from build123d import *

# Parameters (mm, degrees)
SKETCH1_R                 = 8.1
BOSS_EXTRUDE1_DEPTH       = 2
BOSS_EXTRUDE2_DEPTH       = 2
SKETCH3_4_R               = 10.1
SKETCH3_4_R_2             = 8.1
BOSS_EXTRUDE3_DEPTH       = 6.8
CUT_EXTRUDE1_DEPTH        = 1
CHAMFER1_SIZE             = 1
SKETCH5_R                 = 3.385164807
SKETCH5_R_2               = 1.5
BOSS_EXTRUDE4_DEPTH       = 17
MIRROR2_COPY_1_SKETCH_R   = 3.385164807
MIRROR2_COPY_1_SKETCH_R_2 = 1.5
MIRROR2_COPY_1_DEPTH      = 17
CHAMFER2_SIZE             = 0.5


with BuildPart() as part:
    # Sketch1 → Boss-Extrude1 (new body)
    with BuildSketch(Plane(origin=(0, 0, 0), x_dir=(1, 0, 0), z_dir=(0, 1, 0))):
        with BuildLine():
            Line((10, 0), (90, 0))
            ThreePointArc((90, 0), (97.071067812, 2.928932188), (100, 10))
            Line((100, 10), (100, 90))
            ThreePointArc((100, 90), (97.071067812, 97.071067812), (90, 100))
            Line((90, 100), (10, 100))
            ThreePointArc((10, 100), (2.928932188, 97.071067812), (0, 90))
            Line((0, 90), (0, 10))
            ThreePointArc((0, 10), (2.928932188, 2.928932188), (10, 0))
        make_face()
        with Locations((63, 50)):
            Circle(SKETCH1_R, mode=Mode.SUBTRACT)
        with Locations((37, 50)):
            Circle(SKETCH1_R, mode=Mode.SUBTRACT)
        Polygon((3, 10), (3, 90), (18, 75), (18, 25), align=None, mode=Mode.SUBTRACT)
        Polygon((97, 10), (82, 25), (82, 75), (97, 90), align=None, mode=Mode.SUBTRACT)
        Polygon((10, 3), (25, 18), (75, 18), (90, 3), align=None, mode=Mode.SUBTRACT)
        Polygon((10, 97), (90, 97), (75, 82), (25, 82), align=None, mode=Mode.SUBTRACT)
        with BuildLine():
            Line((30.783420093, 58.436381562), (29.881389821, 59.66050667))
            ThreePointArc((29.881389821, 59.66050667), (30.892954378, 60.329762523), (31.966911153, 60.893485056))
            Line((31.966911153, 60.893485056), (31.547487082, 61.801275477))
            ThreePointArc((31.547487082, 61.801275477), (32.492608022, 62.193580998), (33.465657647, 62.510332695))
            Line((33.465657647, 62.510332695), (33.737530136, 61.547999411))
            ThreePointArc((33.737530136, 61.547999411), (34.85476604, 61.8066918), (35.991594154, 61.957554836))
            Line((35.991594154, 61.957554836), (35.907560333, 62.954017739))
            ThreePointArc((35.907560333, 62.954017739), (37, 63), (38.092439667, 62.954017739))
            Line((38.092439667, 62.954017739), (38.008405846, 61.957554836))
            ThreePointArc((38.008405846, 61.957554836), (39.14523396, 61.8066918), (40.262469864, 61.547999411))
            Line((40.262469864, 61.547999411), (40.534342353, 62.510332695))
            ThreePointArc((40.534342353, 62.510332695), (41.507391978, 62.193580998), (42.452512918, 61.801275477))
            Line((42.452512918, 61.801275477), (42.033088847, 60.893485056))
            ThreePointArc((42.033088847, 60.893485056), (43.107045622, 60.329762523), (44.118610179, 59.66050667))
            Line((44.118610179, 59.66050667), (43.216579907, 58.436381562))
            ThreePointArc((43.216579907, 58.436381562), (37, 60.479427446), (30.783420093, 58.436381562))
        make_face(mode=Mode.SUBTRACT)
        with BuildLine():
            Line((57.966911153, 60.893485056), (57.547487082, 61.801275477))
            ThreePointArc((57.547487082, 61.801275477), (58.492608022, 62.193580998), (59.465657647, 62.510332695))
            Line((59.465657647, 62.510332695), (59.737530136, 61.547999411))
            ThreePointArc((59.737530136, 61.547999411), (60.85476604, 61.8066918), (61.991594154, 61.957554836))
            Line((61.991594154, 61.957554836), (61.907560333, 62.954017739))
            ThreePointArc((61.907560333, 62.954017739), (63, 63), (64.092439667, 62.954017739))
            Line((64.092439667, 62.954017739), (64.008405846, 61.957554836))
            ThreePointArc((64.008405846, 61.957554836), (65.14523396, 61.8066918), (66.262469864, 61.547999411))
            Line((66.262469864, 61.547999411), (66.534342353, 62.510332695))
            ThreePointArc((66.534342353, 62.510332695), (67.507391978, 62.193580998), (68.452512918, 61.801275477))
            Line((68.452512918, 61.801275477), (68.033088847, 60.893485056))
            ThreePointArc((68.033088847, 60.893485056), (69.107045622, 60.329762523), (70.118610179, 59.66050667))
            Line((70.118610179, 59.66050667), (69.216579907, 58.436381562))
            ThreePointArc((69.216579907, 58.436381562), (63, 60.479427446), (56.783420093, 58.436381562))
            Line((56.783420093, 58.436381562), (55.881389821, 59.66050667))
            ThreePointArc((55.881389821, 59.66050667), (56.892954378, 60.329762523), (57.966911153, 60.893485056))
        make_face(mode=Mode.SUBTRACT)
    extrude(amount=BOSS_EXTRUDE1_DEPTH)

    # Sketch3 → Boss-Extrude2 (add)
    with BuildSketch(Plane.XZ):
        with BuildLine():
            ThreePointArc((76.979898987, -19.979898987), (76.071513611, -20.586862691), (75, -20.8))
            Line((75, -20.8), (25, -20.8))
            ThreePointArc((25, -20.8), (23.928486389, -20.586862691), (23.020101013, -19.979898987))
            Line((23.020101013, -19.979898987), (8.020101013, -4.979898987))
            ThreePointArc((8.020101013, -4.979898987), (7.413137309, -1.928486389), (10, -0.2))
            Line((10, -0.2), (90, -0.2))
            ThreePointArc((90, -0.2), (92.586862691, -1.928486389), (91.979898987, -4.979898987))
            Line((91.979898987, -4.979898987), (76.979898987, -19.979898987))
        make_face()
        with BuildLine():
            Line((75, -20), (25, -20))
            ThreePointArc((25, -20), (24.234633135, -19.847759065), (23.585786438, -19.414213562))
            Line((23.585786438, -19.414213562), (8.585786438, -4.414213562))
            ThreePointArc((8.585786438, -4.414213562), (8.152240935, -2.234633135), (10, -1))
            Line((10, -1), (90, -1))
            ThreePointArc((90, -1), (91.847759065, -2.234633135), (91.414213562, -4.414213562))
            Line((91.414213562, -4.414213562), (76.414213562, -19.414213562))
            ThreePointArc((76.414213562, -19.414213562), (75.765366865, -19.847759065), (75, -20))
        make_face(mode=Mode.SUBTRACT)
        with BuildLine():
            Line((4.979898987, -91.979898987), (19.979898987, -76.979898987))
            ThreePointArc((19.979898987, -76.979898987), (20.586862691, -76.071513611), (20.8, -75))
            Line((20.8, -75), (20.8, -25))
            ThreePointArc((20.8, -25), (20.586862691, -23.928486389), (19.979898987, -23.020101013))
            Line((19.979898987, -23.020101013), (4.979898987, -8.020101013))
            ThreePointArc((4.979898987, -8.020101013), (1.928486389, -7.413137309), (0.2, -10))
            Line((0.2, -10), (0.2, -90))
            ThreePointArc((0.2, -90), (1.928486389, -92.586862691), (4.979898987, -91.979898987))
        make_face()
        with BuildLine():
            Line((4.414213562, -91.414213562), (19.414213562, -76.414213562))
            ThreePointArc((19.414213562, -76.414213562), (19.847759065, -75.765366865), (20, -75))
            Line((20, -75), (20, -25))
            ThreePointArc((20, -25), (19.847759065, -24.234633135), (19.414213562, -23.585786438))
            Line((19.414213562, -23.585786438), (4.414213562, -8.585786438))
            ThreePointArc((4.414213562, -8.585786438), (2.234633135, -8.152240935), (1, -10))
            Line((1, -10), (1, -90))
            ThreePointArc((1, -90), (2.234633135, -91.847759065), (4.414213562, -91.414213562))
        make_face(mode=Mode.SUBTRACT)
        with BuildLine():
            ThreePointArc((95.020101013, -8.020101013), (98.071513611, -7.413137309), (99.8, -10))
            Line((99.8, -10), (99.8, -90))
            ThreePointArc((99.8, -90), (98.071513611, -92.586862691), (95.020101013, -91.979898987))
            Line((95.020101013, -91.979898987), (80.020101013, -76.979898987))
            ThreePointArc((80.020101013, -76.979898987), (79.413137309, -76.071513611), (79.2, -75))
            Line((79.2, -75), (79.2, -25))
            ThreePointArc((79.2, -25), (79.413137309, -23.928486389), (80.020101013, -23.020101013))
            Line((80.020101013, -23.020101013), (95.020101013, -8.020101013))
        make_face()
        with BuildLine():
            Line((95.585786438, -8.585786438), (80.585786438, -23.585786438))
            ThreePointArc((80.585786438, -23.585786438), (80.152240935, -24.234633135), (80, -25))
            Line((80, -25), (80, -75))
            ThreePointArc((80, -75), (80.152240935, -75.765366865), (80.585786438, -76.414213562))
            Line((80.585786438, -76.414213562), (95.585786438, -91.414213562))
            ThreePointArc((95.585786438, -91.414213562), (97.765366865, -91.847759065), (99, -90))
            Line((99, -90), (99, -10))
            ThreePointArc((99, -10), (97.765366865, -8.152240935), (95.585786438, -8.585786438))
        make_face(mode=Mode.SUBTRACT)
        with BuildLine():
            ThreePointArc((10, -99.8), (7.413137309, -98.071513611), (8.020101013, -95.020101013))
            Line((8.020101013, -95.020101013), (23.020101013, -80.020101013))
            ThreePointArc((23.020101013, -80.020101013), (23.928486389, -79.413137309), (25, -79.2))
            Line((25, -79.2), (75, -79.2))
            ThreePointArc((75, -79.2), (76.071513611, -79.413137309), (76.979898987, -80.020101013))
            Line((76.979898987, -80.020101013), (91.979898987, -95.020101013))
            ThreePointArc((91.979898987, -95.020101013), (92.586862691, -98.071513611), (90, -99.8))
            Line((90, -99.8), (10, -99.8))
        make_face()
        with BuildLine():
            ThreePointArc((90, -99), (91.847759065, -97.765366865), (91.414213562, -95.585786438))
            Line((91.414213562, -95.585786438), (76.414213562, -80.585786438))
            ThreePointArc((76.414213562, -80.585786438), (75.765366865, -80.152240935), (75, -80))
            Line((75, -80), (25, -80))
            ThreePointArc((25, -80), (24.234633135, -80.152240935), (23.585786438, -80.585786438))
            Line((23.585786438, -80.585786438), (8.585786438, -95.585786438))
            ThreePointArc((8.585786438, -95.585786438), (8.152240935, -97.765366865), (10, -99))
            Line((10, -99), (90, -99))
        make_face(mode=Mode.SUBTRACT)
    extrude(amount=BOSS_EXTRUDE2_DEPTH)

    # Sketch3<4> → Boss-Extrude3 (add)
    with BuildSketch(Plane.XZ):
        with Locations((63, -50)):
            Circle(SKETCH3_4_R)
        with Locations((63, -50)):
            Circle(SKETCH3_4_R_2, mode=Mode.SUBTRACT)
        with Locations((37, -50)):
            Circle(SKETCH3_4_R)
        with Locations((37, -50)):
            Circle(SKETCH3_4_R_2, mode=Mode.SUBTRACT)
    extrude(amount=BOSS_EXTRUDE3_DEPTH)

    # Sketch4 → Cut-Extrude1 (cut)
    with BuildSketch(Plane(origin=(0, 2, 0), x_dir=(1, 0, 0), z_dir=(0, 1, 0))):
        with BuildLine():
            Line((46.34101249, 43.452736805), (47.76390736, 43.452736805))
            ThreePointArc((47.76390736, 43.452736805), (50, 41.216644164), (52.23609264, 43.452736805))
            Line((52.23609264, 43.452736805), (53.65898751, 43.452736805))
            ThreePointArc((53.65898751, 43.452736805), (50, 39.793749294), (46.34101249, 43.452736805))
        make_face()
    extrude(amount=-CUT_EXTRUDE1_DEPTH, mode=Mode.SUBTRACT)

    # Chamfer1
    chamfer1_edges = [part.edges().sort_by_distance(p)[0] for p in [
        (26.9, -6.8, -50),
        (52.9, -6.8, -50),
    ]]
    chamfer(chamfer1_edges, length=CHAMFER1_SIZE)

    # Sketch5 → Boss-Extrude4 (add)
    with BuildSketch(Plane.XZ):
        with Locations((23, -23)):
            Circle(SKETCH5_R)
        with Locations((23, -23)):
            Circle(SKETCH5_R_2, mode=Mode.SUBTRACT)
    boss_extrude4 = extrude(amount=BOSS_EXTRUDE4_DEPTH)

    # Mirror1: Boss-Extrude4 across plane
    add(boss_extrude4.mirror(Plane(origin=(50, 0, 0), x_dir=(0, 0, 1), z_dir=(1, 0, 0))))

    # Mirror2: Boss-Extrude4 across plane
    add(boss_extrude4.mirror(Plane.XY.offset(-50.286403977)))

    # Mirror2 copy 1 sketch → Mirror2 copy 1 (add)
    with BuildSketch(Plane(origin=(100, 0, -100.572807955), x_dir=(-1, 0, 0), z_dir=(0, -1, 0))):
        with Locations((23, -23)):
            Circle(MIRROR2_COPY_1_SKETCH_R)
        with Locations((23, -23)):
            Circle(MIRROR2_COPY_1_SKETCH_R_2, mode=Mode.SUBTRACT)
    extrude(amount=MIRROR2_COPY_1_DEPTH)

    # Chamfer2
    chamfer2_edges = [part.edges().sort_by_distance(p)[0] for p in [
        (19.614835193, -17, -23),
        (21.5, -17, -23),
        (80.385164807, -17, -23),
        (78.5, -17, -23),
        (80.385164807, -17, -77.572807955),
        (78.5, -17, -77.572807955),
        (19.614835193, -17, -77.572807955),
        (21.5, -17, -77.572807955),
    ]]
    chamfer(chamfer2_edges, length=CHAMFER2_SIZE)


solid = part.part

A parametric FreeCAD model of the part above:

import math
import FreeCAD as App
import Part
import Sketcher

V = App.Vector
Q = App.Units.Quantity


def edges_at(feature, points):
    """Names of the edges that pass closest to the given points."""
    edges = feature.Shape.Edges
    near = lambda p: min(range(len(edges)), key=lambda i: edges[i].distToShape(Part.Vertex(*p))[0])
    return sorted({f"Edge{near(p) + 1}" for p in points})

doc = App.newDocument("Part")
body = doc.addObject("PartDesign::Body", "Body")

sketch1 = body.newObject("Sketcher::SketchObject", "Sketch")
sketch1.AttachmentSupport = (doc.getObject("XZ_Plane"), [""])
sketch1.MapMode = "FlatFace"
sketch1.addGeometry(Part.LineSegment(V(10, 0, 0), V(90, 0, 0)), False)
sketch1.addGeometry(Part.ArcOfCircle(Part.Circle(V(90, -10, 0), V(0, 0, 1), 10), math.radians(0), math.radians(90)), False)
sketch1.addGeometry(Part.LineSegment(V(100, -10, 0), V(100, -90, 0)), False)
sketch1.addGeometry(Part.ArcOfCircle(Part.Circle(V(90, -90, 0), V(0, 0, 1), 10), math.radians(-90), math.radians(0)), False)
sketch1.addGeometry(Part.LineSegment(V(90, -100, 0), V(10, -100, 0)), False)
sketch1.addGeometry(Part.ArcOfCircle(Part.Circle(V(10, -90, 0), V(0, 0, 1), 10), math.radians(180), math.radians(270)), False)
sketch1.addGeometry(Part.LineSegment(V(0, -90, 0), V(0, -10, 0)), False)
sketch1.addGeometry(Part.ArcOfCircle(Part.Circle(V(10, -10, 0), V(0, 0, 1), 10), math.radians(90), math.radians(180)), False)
sketch1.addGeometry(Part.LineSegment(V(90, -3, 0), V(10, -3, 0)), False)
sketch1.addGeometry(Part.LineSegment(V(10, -3, 0), V(25, -18, 0)), False)
sketch1.addGeometry(Part.LineSegment(V(25, -18, 0), V(75, -18, 0)), False)
sketch1.addGeometry(Part.LineSegment(V(75, -18, 0), V(90, -3, 0)), False)
sketch1.addGeometry(Part.LineSegment(V(18, -25, 0), V(3, -10, 0)), False)
sketch1.addGeometry(Part.LineSegment(V(3, -10, 0), V(3, -90, 0)), False)
sketch1.addGeometry(Part.LineSegment(V(3, -90, 0), V(18, -75, 0)), False)
sketch1.addGeometry(Part.LineSegment(V(18, -75, 0), V(18, -25, 0)), False)
sketch1.addGeometry(Part.Circle(V(37, -50, 0), V(0, 0, 1), 8.1), False)
sketch1.addGeometry(Part.ArcOfCircle(Part.Circle(V(37, -50, 0), V(0, 0, 1), 10.5), math.radians(-126), math.radians(-54)), False)
sketch1.addGeometry(Part.LineSegment(V(30.8, -58.4, 0), V(29.9, -59.7, 0)), False)
sketch1.addGeometry(Part.ArcOfCircle(Part.Circle(V(37, -50, 0), V(0, 0, 1), 12), math.radians(-126.39), math.radians(-114.8)), False)
sketch1.addGeometry(Part.LineSegment(V(32, -60.9, 0), V(31.5, -61.8, 0)), False)
sketch1.addGeometry(Part.ArcOfCircle(Part.Circle(V(37, -50, 0), V(0, 0, 1), 13), math.radians(-114.8), math.radians(-105.78)), False)
sketch1.addGeometry(Part.LineSegment(V(33.5, -62.5, 0), V(33.7, -61.5, 0)), False)
sketch1.addGeometry(Part.ArcOfCircle(Part.Circle(V(37, -50, 0), V(0, 0, 1), 12), math.radians(-105.78), math.radians(-94.82)), False)
sketch1.addGeometry(Part.LineSegment(V(36, -62, 0), V(35.9, -63, 0)), False)
sketch1.addGeometry(Part.ArcOfCircle(Part.Circle(V(37, -50, 0), V(0, 0, 1), 13), math.radians(-94.82), math.radians(-85.18)), False)
sketch1.addGeometry(Part.LineSegment(V(38.1, -63, 0), V(38, -62, 0)), False)
sketch1.addGeometry(Part.ArcOfCircle(Part.Circle(V(37, -50, 0), V(0, 0, 1), 12), math.radians(-85.18), math.radians(-74.22)), False)
sketch1.addGeometry(Part.LineSegment(V(40.3, -61.5, 0), V(40.5, -62.5, 0)), False)
sketch1.addGeometry(Part.ArcOfCircle(Part.Circle(V(37, -50, 0), V(0, 0, 1), 13), math.radians(-74.22), math.radians(-65.2)), False)
sketch1.addGeometry(Part.LineSegment(V(42.5, -61.8, 0), V(42, -60.9, 0)), False)
sketch1.addGeometry(Part.ArcOfCircle(Part.Circle(V(37, -50, 0), V(0, 0, 1), 12), math.radians(-65.2), math.radians(-53.61)), False)
sketch1.addGeometry(Part.LineSegment(V(44.1, -59.7, 0), V(43.2, -58.4, 0)), False)
sketch1.addGeometry(Part.Circle(V(63, -50, 0), V(0, 0, 1), 8.1), False)
sketch1.addGeometry(Part.ArcOfCircle(Part.Circle(V(63, -50, 0), V(0, 0, 1), 12), math.radians(-126.39), math.radians(-114.8)), False)
sketch1.addGeometry(Part.LineSegment(V(58, -60.9, 0), V(57.5, -61.8, 0)), False)
sketch1.addGeometry(Part.ArcOfCircle(Part.Circle(V(63, -50, 0), V(0, 0, 1), 13), math.radians(-114.8), math.radians(-105.78)), False)
sketch1.addGeometry(Part.LineSegment(V(59.5, -62.5, 0), V(59.7, -61.5, 0)), False)
sketch1.addGeometry(Part.ArcOfCircle(Part.Circle(V(63, -50, 0), V(0, 0, 1), 12), math.radians(-105.78), math.radians(-94.82)), False)
sketch1.addGeometry(Part.LineSegment(V(62, -62, 0), V(61.9, -63, 0)), False)
sketch1.addGeometry(Part.ArcOfCircle(Part.Circle(V(63, -50, 0), V(0, 0, 1), 13), math.radians(-94.82), math.radians(-85.18)), False)
sketch1.addGeometry(Part.LineSegment(V(64.1, -63, 0), V(64, -62, 0)), False)
sketch1.addGeometry(Part.ArcOfCircle(Part.Circle(V(63, -50, 0), V(0, 0, 1), 12), math.radians(-85.18), math.radians(-74.22)), False)
sketch1.addGeometry(Part.LineSegment(V(66.3, -61.5, 0), V(66.5, -62.5, 0)), False)
sketch1.addGeometry(Part.ArcOfCircle(Part.Circle(V(63, -50, 0), V(0, 0, 1), 13), math.radians(-74.22), math.radians(-65.2)), False)
sketch1.addGeometry(Part.LineSegment(V(68.5, -61.8, 0), V(68, -60.9, 0)), False)
sketch1.addGeometry(Part.ArcOfCircle(Part.Circle(V(63, -50, 0), V(0, 0, 1), 12), math.radians(-65.2), math.radians(-53.61)), False)
sketch1.addGeometry(Part.LineSegment(V(70.1, -59.7, 0), V(69.2, -58.4, 0)), False)
sketch1.addGeometry(Part.ArcOfCircle(Part.Circle(V(63, -50, 0), V(0, 0, 1), 10.5), math.radians(-126), math.radians(-54)), False)
sketch1.addGeometry(Part.LineSegment(V(56.8, -58.4, 0), V(55.9, -59.7, 0)), False)
sketch1.addGeometry(Part.LineSegment(V(97, -90, 0), V(97, -10, 0)), False)
sketch1.addGeometry(Part.LineSegment(V(97, -10, 0), V(82, -25, 0)), False)
sketch1.addGeometry(Part.LineSegment(V(82, -25, 0), V(82, -75, 0)), False)
sketch1.addGeometry(Part.LineSegment(V(82, -75, 0), V(97, -90, 0)), False)
sketch1.addGeometry(Part.LineSegment(V(25, -82, 0), V(10, -97, 0)), False)
sketch1.addGeometry(Part.LineSegment(V(10, -97, 0), V(90, -97, 0)), False)
sketch1.addGeometry(Part.LineSegment(V(90, -97, 0), V(75, -82, 0)), False)
sketch1.addGeometry(Part.LineSegment(V(75, -82, 0), V(25, -82, 0)), False)
sketch1.addConstraint(Sketcher.Constraint("Tangent", 0, 2, 1, 2))
sketch1.addConstraint(Sketcher.Constraint("Tangent", 1, 1, 2, 1))
sketch1.addConstraint(Sketcher.Constraint("Tangent", 2, 2, 3, 2))
sketch1.addConstraint(Sketcher.Constraint("Tangent", 3, 1, 4, 1))
sketch1.addConstraint(Sketcher.Constraint("Tangent", 4, 2, 5, 2))
sketch1.addConstraint(Sketcher.Constraint("Tangent", 5, 1, 6, 1))
sketch1.addConstraint(Sketcher.Constraint("Tangent", 6, 2, 7, 2))
sketch1.addConstraint(Sketcher.Constraint("Tangent", 7, 1, 0, 1))
sketch1.addConstraint(Sketcher.Constraint("Coincident", 8, 2, 9, 1))
sketch1.addConstraint(Sketcher.Constraint("Coincident", 9, 2, 10, 1))
sketch1.addConstraint(Sketcher.Constraint("Coincident", 10, 2, 11, 1))
sketch1.addConstraint(Sketcher.Constraint("Coincident", 11, 2, 8, 1))
sketch1.addConstraint(Sketcher.Constraint("Coincident", 12, 2, 13, 1))
sketch1.addConstraint(Sketcher.Constraint("Coincident", 13, 2, 14, 1))
sketch1.addConstraint(Sketcher.Constraint("Coincident", 14, 2, 15, 1))
sketch1.addConstraint(Sketcher.Constraint("Coincident", 15, 2, 12, 1))
sketch1.addConstraint(Sketcher.Constraint("Coincident", 17, 1, 18, 1))
sketch1.addConstraint(Sketcher.Constraint("Coincident", 18, 2, 19, 1))
sketch1.addConstraint(Sketcher.Constraint("Coincident", 19, 2, 20, 1))
sketch1.addConstraint(Sketcher.Constraint("Coincident", 20, 2, 21, 1))
sketch1.addConstraint(Sketcher.Constraint("Coincident", 21, 2, 22, 1))
sketch1.addConstraint(Sketcher.Constraint("Coincident", 22, 2, 23, 1))
sketch1.addConstraint(Sketcher.Constraint("Coincident", 23, 2, 24, 1))
sketch1.addConstraint(Sketcher.Constraint("Coincident", 24, 2, 25, 1))
sketch1.addConstraint(Sketcher.Constraint("Coincident", 25, 2, 26, 1))
sketch1.addConstraint(Sketcher.Constraint("Coincident", 26, 2, 27, 1))
sketch1.addConstraint(Sketcher.Constraint("Coincident", 27, 2, 28, 1))
sketch1.addConstraint(Sketcher.Constraint("Coincident", 28, 2, 29, 1))
sketch1.addConstraint(Sketcher.Constraint("Coincident", 29, 2, 30, 1))
sketch1.addConstraint(Sketcher.Constraint("Coincident", 30, 2, 31, 1))
sketch1.addConstraint(Sketcher.Constraint("Coincident", 31, 2, 32, 1))
sketch1.addConstraint(Sketcher.Constraint("Coincident", 32, 2, 17, 2))
sketch1.addConstraint(Sketcher.Constraint("Coincident", 34, 2, 35, 1))
sketch1.addConstraint(Sketcher.Constraint("Coincident", 35, 2, 36, 1))
sketch1.addConstraint(Sketcher.Constraint("Coincident", 36, 2, 37, 1))
sketch1.addConstraint(Sketcher.Constraint("Coincident", 37, 2, 38, 1))
sketch1.addConstraint(Sketcher.Constraint("Coincident", 38, 2, 39, 1))
sketch1.addConstraint(Sketcher.Constraint("Coincident", 39, 2, 40, 1))
sketch1.addConstraint(Sketcher.Constraint("Coincident", 40, 2, 41, 1))
sketch1.addConstraint(Sketcher.Constraint("Coincident", 41, 2, 42, 1))
sketch1.addConstraint(Sketcher.Constraint("Coincident", 42, 2, 43, 1))
sketch1.addConstraint(Sketcher.Constraint("Coincident", 43, 2, 44, 1))
sketch1.addConstraint(Sketcher.Constraint("Coincident", 44, 2, 45, 1))
sketch1.addConstraint(Sketcher.Constraint("Coincident", 45, 2, 46, 1))
sketch1.addConstraint(Sketcher.Constraint("Coincident", 46, 2, 47, 1))
sketch1.addConstraint(Sketcher.Constraint("Coincident", 47, 2, 48, 2))
sketch1.addConstraint(Sketcher.Constraint("Coincident", 48, 1, 49, 1))
sketch1.addConstraint(Sketcher.Constraint("Coincident", 49, 2, 34, 1))
sketch1.addConstraint(Sketcher.Constraint("Coincident", 50, 2, 51, 1))
sketch1.addConstraint(Sketcher.Constraint("Coincident", 51, 2, 52, 1))
sketch1.addConstraint(Sketcher.Constraint("Coincident", 52, 2, 53, 1))
sketch1.addConstraint(Sketcher.Constraint("Coincident", 53, 2, 50, 1))
sketch1.addConstraint(Sketcher.Constraint("Coincident", 54, 2, 55, 1))
sketch1.addConstraint(Sketcher.Constraint("Coincident", 55, 2, 56, 1))
sketch1.addConstraint(Sketcher.Constraint("Coincident", 56, 2, 57, 1))
sketch1.addConstraint(Sketcher.Constraint("Coincident", 57, 2, 54, 1))
sketch1.addConstraint(Sketcher.Constraint("Horizontal", 0))
sketch1.addConstraint(Sketcher.Constraint("Vertical", 2))
sketch1.addConstraint(Sketcher.Constraint("Horizontal", 4))
sketch1.addConstraint(Sketcher.Constraint("Vertical", 6))
sketch1.addConstraint(Sketcher.Constraint("Horizontal", 8))
sketch1.addConstraint(Sketcher.Constraint("Horizontal", 10))
sketch1.addConstraint(Sketcher.Constraint("Vertical", 13))
sketch1.addConstraint(Sketcher.Constraint("Vertical", 15))
sketch1.addConstraint(Sketcher.Constraint("Vertical", 50))
sketch1.addConstraint(Sketcher.Constraint("Vertical", 52))
sketch1.addConstraint(Sketcher.Constraint("Horizontal", 55))
sketch1.addConstraint(Sketcher.Constraint("Horizontal", 57))
sketch1.addConstraint(Sketcher.Constraint("Coincident", 17, 3, 16, 3))
sketch1.addConstraint(Sketcher.Constraint("Coincident", 19, 3, 16, 3))
sketch1.addConstraint(Sketcher.Constraint("Coincident", 21, 3, 16, 3))
sketch1.addConstraint(Sketcher.Constraint("Coincident", 23, 3, 16, 3))
sketch1.addConstraint(Sketcher.Constraint("Coincident", 25, 3, 16, 3))
sketch1.addConstraint(Sketcher.Constraint("Coincident", 27, 3, 16, 3))
sketch1.addConstraint(Sketcher.Constraint("Coincident", 29, 3, 16, 3))
sketch1.addConstraint(Sketcher.Constraint("Coincident", 31, 3, 16, 3))
sketch1.addConstraint(Sketcher.Constraint("Coincident", 34, 3, 33, 3))
sketch1.addConstraint(Sketcher.Constraint("Coincident", 36, 3, 33, 3))
sketch1.addConstraint(Sketcher.Constraint("Coincident", 38, 3, 33, 3))
sketch1.addConstraint(Sketcher.Constraint("Coincident", 40, 3, 33, 3))
sketch1.addConstraint(Sketcher.Constraint("Coincident", 42, 3, 33, 3))
sketch1.addConstraint(Sketcher.Constraint("Coincident", 44, 3, 33, 3))
sketch1.addConstraint(Sketcher.Constraint("Coincident", 46, 3, 33, 3))
sketch1.addConstraint(Sketcher.Constraint("Coincident", 48, 3, 33, 3))
sketch1.addConstraint(Sketcher.Constraint("Equal", 1, 3))
sketch1.addConstraint(Sketcher.Constraint("Equal", 3, 5))
sketch1.addConstraint(Sketcher.Constraint("Equal", 5, 7))
sketch1.addConstraint(Sketcher.Constraint("Equal", 19, 23))
sketch1.addConstraint(Sketcher.Constraint("Equal", 21, 25))
sketch1.addConstraint(Sketcher.Constraint("Equal", 23, 27))
sketch1.addConstraint(Sketcher.Constraint("Equal", 25, 29))
sketch1.addConstraint(Sketcher.Constraint("Equal", 27, 31))
sketch1.addConstraint(Sketcher.Constraint("Equal", 16, 33))
sketch1.addConstraint(Sketcher.Constraint("Equal", 31, 34))
sketch1.addConstraint(Sketcher.Constraint("Equal", 29, 36))
sketch1.addConstraint(Sketcher.Constraint("Equal", 34, 38))
sketch1.addConstraint(Sketcher.Constraint("Equal", 36, 40))
sketch1.addConstraint(Sketcher.Constraint("Equal", 38, 42))
sketch1.addConstraint(Sketcher.Constraint("Equal", 40, 44))
sketch1.addConstraint(Sketcher.Constraint("Equal", 42, 46))
sketch1.addConstraint(Sketcher.Constraint("Equal", 17, 48))
sketch1.addConstraint(Sketcher.Constraint("PointOnObject", 0, 2, -1))
sketch1.addConstraint(Sketcher.Constraint("PointOnObject", 5, 1, -2))
sketch1.addConstraint(Sketcher.Constraint("Perpendicular", 9, 11))
sketch1.addConstraint(Sketcher.Constraint("Perpendicular", 11, 12))
sketch1.addConstraint(Sketcher.Constraint("Perpendicular", 12, 14))
sketch1.addConstraint(Sketcher.Constraint("Parallel", 20, 35))
sketch1.addConstraint(Sketcher.Constraint("Parallel", 22, 37))
sketch1.addConstraint(Sketcher.Constraint("Parallel", 24, 39))
sketch1.addConstraint(Sketcher.Constraint("Parallel", 26, 41))
sketch1.addConstraint(Sketcher.Constraint("Parallel", 28, 43))
sketch1.addConstraint(Sketcher.Constraint("Parallel", 30, 45))
sketch1.addConstraint(Sketcher.Constraint("Parallel", 32, 47))
sketch1.addConstraint(Sketcher.Constraint("Parallel", 18, 49))
sketch1.addConstraint(Sketcher.Constraint("Parallel", 14, 51))
sketch1.addConstraint(Sketcher.Constraint("Perpendicular", 51, 53))
sketch1.addConstraint(Sketcher.Constraint("Perpendicular", 53, 54))
sketch1.addConstraint(Sketcher.Constraint("Perpendicular", 54, 56))
sketch1.addConstraint(Sketcher.Constraint("Horizontal", 31, 3, 33, 3))
sketch1.addConstraint(Sketcher.Constraint("Horizontal", 6, 2, 12, 2))
sketch1.addConstraint(Sketcher.Constraint("Horizontal", 5, 1, 13, 2))
sketch1.addConstraint(Sketcher.Constraint("Horizontal", 24, 2, 25, 2))
sketch1.addConstraint(Sketcher.Constraint("Horizontal", 23, 2, 26, 2))
sketch1.addConstraint(Sketcher.Constraint("Horizontal", 22, 2, 27, 2))
sketch1.addConstraint(Sketcher.Constraint("Horizontal", 21, 2, 28, 2))
sketch1.addConstraint(Sketcher.Constraint("Horizontal", 20, 2, 29, 2))
sketch1.addConstraint(Sketcher.Constraint("Horizontal", 19, 2, 30, 2))
sketch1.addConstraint(Sketcher.Constraint("Horizontal", 18, 2, 31, 2))
sketch1.addConstraint(Sketcher.Constraint("Horizontal", 17, 1, 32, 2))
sketch1.addConstraint(Sketcher.Constraint("Horizontal", 30, 2, 34, 2))
sketch1.addConstraint(Sketcher.Constraint("Horizontal", 28, 2, 36, 2))
sketch1.addConstraint(Sketcher.Constraint("Horizontal", 26, 2, 38, 2))
sketch1.addConstraint(Sketcher.Constraint("Horizontal", 39, 2, 40, 2))
sketch1.addConstraint(Sketcher.Constraint("Horizontal", 37, 2, 42, 2))
sketch1.addConstraint(Sketcher.Constraint("Horizontal", 35, 2, 44, 2))
sketch1.addConstraint(Sketcher.Constraint("Horizontal", 31, 2, 46, 2))
sketch1.addConstraint(Sketcher.Constraint("Horizontal", 47, 2, 48, 1))
sketch1.addConstraint(Sketcher.Constraint("Horizontal", 12, 2, 50, 2))
sketch1.addConstraint(Sketcher.Constraint("Horizontal", 15, 2, 51, 2))
sketch1.addConstraint(Sketcher.Constraint("Horizontal", 14, 2, 52, 2))
sketch1.addConstraint(Sketcher.Constraint("Horizontal", 13, 2, 53, 2))
sketch1.addConstraint(Sketcher.Constraint("Vertical", 7, 1, 8, 2))
sketch1.addConstraint(Sketcher.Constraint("Vertical", 3, 1, 11, 2))
sketch1.addConstraint(Sketcher.Constraint("Vertical", 8, 2, 54, 2))
sketch1.addConstraint(Sketcher.Constraint("Vertical", 11, 2, 55, 2))
sketch1.addConstraint(Sketcher.Constraint("Vertical", 10, 2, 56, 2))
sketch1.addConstraint(Sketcher.Constraint("Equal", 55, 2))
sketch1.addConstraint(Sketcher.Constraint("Equal", 57, 15))
sketch1.addConstraint(Sketcher.Constraint("Radius", 1, Q("10 mm")))
sketch1.addConstraint(Sketcher.Constraint("Radius", 19, Q("12 mm")))
sketch1.addConstraint(Sketcher.Constraint("Radius", 21, Q("13 mm")))
sketch1.addConstraint(Sketcher.Constraint("Diameter", 16, Q("16.2 mm")))
sketch1.addConstraint(Sketcher.Constraint("DistanceX", 0, 1, 0, 2, Q("80 mm")))
sketch1.addConstraint(Sketcher.Constraint("DistanceX", 10, 1, 10, 2, Q("50 mm")))
sketch1.addConstraint(Sketcher.Constraint("DistanceX", -1, 1, 16, 3, Q("37 mm")))
sketch1.addConstraint(Sketcher.Constraint("DistanceY", 16, 3, -1, 1, Q("50 mm")))
sketch1.addConstraint(Sketcher.Constraint("DistanceX", -1, 1, 33, 3, Q("63 mm")))
sketch1.addConstraint(Sketcher.Constraint("DistanceY", 8, 2, -1, 1, Q("3 mm")))
sketch1.addConstraint(Sketcher.Constraint("DistanceX", -1, 1, 12, 2, Q("3 mm")))
sketch1.addConstraint(Sketcher.Constraint("DistanceX", -1, 1, 50, 2, Q("97 mm")))
sketch1.addConstraint(Sketcher.Constraint("DistanceY", 54, 2, -1, 1, Q("97 mm")))
sketch1.addConstraint(Sketcher.Constraint("DistanceY", 22, 2, -1, 1, Q("61.547999 mm")))
sketch1.addConstraint(Sketcher.Constraint("Radius", 17, Q("10.479427 mm")))
sketch1.addConstraint(Sketcher.Constraint("DistanceX", -1, 1, 17, 1, Q("30.78342 mm")))
sketch1.addConstraint(Sketcher.Constraint("DistanceX", -1, 1, 18, 2, Q("29.88139 mm")))
sketch1.addConstraint(Sketcher.Constraint("DistanceX", -1, 1, 19, 2, Q("31.966911 mm")))
sketch1.addConstraint(Sketcher.Constraint("DistanceX", -1, 1, 24, 2, Q("35.90756 mm")))
sketch1.addConstraint(Sketcher.Constraint("DistanceX", -1, 1, 20, 2, Q("31.547487 mm")))
sketch1.addConstraint(Sketcher.Constraint("DistanceX", -1, 1, 21, 2, Q("33.465658 mm")))
sketch1.addConstraint(Sketcher.Constraint("DistanceX", -1, 1, 23, 2, Q("35.991594 mm")))
pad1 = body.newObject("PartDesign::Pad", "Pad")
pad1.Profile = sketch1
pad1.Length = 2
pad1.Reversed = True

sketch2 = body.newObject("Sketcher::SketchObject", "Sketch001")
sketch2.AttachmentSupport = (doc.getObject("XZ_Plane"), [""])
sketch2.MapMode = "FlatFace"
sketch2.addGeometry(Part.ArcOfCircle(Part.Circle(V(75, -18, 0), V(0, 0, 1), 2.8), math.radians(-90), math.radians(-45)), False)
sketch2.addGeometry(Part.LineSegment(V(77, -20, 0), V(92, -5, 0)), False)
sketch2.addGeometry(Part.ArcOfCircle(Part.Circle(V(90, -3, 0), V(0, 0, 1), 2.8), math.radians(-45), math.radians(90)), False)
sketch2.addGeometry(Part.LineSegment(V(90, -0.2, 0), V(10, -0.2, 0)), False)
sketch2.addGeometry(Part.ArcOfCircle(Part.Circle(V(10, -3, 0), V(0, 0, 1), 2.8), math.radians(90), math.radians(225)), False)
sketch2.addGeometry(Part.LineSegment(V(8, -5, 0), V(23, -20, 0)), False)
sketch2.addGeometry(Part.ArcOfCircle(Part.Circle(V(25, -18, 0), V(0, 0, 1), 2.8), math.radians(-135), math.radians(-90)), False)
sketch2.addGeometry(Part.LineSegment(V(25, -20.8, 0), V(75, -20.8, 0)), False)
sketch2.addGeometry(Part.LineSegment(V(75, -20, 0), V(25, -20, 0)), False)
sketch2.addGeometry(Part.ArcOfCircle(Part.Circle(V(25, -18, 0), V(0, 0, 1), 2), math.radians(-135), math.radians(-90)), False)
sketch2.addGeometry(Part.LineSegment(V(23.6, -19.4, 0), V(8.6, -4.4, 0)), False)
sketch2.addGeometry(Part.ArcOfCircle(Part.Circle(V(10, -3, 0), V(0, 0, 1), 2), math.radians(90), math.radians(225)), False)
sketch2.addGeometry(Part.LineSegment(V(10, -1, 0), V(90, -1, 0)), False)
sketch2.addGeometry(Part.ArcOfCircle(Part.Circle(V(90, -3, 0), V(0, 0, 1), 2), math.radians(-45), math.radians(90)), False)
sketch2.addGeometry(Part.LineSegment(V(91.4, -4.4, 0), V(76.4, -19.4, 0)), False)
sketch2.addGeometry(Part.ArcOfCircle(Part.Circle(V(75, -18, 0), V(0, 0, 1), 2), math.radians(-90), math.radians(-45)), False)
sketch2.addGeometry(Part.LineSegment(V(5, -92, 0), V(20, -77, 0)), False)
sketch2.addGeometry(Part.ArcOfCircle(Part.Circle(V(18, -75, 0), V(0, 0, 1), 2.8), math.radians(-45), math.radians(0)), False)
sketch2.addGeometry(Part.LineSegment(V(20.8, -75, 0), V(20.8, -25, 0)), False)
sketch2.addGeometry(Part.ArcOfCircle(Part.Circle(V(18, -25, 0), V(0, 0, 1), 2.8), math.radians(0), math.radians(45)), False)
sketch2.addGeometry(Part.LineSegment(V(20, -23, 0), V(5, -8, 0)), False)
sketch2.addGeometry(Part.ArcOfCircle(Part.Circle(V(3, -10, 0), V(0, 0, 1), 2.8), math.radians(45), math.radians(180)), False)
sketch2.addGeometry(Part.LineSegment(V(0.2, -10, 0), V(0.2, -90, 0)), False)
sketch2.addGeometry(Part.ArcOfCircle(Part.Circle(V(3, -90, 0), V(0, 0, 1), 2.8), math.radians(180), math.radians(315)), False)
sketch2.addGeometry(Part.LineSegment(V(19.4, -76.4, 0), V(4.4, -91.4, 0)), False)
sketch2.addGeometry(Part.ArcOfCircle(Part.Circle(V(3, -90, 0), V(0, 0, 1), 2), math.radians(180), math.radians(315)), False)
sketch2.addGeometry(Part.LineSegment(V(1, -90, 0), V(1, -10, 0)), False)
sketch2.addGeometry(Part.ArcOfCircle(Part.Circle(V(3, -10, 0), V(0, 0, 1), 2), math.radians(45), math.radians(180)), False)
sketch2.addGeometry(Part.LineSegment(V(4.4, -8.6, 0), V(19.4, -23.6, 0)), False)
sketch2.addGeometry(Part.ArcOfCircle(Part.Circle(V(18, -25, 0), V(0, 0, 1), 2), math.radians(0), math.radians(45)), False)
sketch2.addGeometry(Part.LineSegment(V(20, -25, 0), V(20, -75, 0)), False)
sketch2.addGeometry(Part.ArcOfCircle(Part.Circle(V(18, -75, 0), V(0, 0, 1), 2), math.radians(-45), math.radians(0)), False)
sketch2.addGeometry(Part.ArcOfCircle(Part.Circle(V(97, -10, 0), V(0, 0, 1), 2.8), math.radians(0), math.radians(135)), False)
sketch2.addGeometry(Part.LineSegment(V(95, -8, 0), V(80, -23, 0)), False)
sketch2.addGeometry(Part.ArcOfCircle(Part.Circle(V(82, -25, 0), V(0, 0, 1), 2.8), math.radians(135), math.radians(180)), False)
sketch2.addGeometry(Part.LineSegment(V(79.2, -25, 0), V(79.2, -75, 0)), False)
sketch2.addGeometry(Part.ArcOfCircle(Part.Circle(V(82, -75, 0), V(0, 0, 1), 2.8), math.radians(180), math.radians(225)), False)
sketch2.addGeometry(Part.LineSegment(V(80, -77, 0), V(95, -92, 0)), False)
sketch2.addGeometry(Part.ArcOfCircle(Part.Circle(V(97, -90, 0), V(0, 0, 1), 2.8), math.radians(-135), math.radians(0)), False)
sketch2.addGeometry(Part.LineSegment(V(99.8, -90, 0), V(99.8, -10, 0)), False)
sketch2.addGeometry(Part.ArcOfCircle(Part.Circle(V(97, -10, 0), V(0, 0, 1), 2), math.radians(0), math.radians(135)), False)
sketch2.addGeometry(Part.LineSegment(V(99, -10, 0), V(99, -90, 0)), False)
sketch2.addGeometry(Part.ArcOfCircle(Part.Circle(V(97, -90, 0), V(0, 0, 1), 2), math.radians(-135), math.radians(0)), False)
sketch2.addGeometry(Part.LineSegment(V(95.6, -91.4, 0), V(80.6, -76.4, 0)), False)
sketch2.addGeometry(Part.ArcOfCircle(Part.Circle(V(82, -75, 0), V(0, 0, 1), 2), math.radians(180), math.radians(225)), False)
sketch2.addGeometry(Part.LineSegment(V(80, -75, 0), V(80, -25, 0)), False)
sketch2.addGeometry(Part.ArcOfCircle(Part.Circle(V(82, -25, 0), V(0, 0, 1), 2), math.radians(135), math.radians(180)), False)
sketch2.addGeometry(Part.LineSegment(V(80.6, -23.6, 0), V(95.6, -8.6, 0)), False)
sketch2.addGeometry(Part.ArcOfCircle(Part.Circle(V(10, -97, 0), V(0, 0, 1), 2.8), math.radians(135), math.radians(270)), False)
sketch2.addGeometry(Part.LineSegment(V(10, -99.8, 0), V(90, -99.8, 0)), False)
sketch2.addGeometry(Part.ArcOfCircle(Part.Circle(V(90, -97, 0), V(0, 0, 1), 2.8), math.radians(-90), math.radians(45)), False)
sketch2.addGeometry(Part.LineSegment(V(92, -95, 0), V(77, -80, 0)), False)
sketch2.addGeometry(Part.ArcOfCircle(Part.Circle(V(75, -82, 0), V(0, 0, 1), 2.8), math.radians(45), math.radians(90)), False)
sketch2.addGeometry(Part.LineSegment(V(75, -79.2, 0), V(25, -79.2, 0)), False)
sketch2.addGeometry(Part.ArcOfCircle(Part.Circle(V(25, -82, 0), V(0, 0, 1), 2.8), math.radians(90), math.radians(135)), False)
sketch2.addGeometry(Part.LineSegment(V(23, -80, 0), V(8, -95, 0)), False)
sketch2.addGeometry(Part.LineSegment(V(90, -99, 0), V(10, -99, 0)), False)
sketch2.addGeometry(Part.ArcOfCircle(Part.Circle(V(10, -97, 0), V(0, 0, 1), 2), math.radians(135), math.radians(270)), False)
sketch2.addGeometry(Part.LineSegment(V(8.6, -95.6, 0), V(23.6, -80.6, 0)), False)
sketch2.addGeometry(Part.ArcOfCircle(Part.Circle(V(25, -82, 0), V(0, 0, 1), 2), math.radians(90), math.radians(135)), False)
sketch2.addGeometry(Part.LineSegment(V(25, -80, 0), V(75, -80, 0)), False)
sketch2.addGeometry(Part.ArcOfCircle(Part.Circle(V(75, -82, 0), V(0, 0, 1), 2), math.radians(45), math.radians(90)), False)
sketch2.addGeometry(Part.LineSegment(V(76.4, -80.6, 0), V(91.4, -95.6, 0)), False)
sketch2.addGeometry(Part.ArcOfCircle(Part.Circle(V(90, -97, 0), V(0, 0, 1), 2), math.radians(-90), math.radians(45)), False)
sketch2.addConstraint(Sketcher.Constraint("Tangent", 0, 2, 1, 1))
sketch2.addConstraint(Sketcher.Constraint("Tangent", 1, 2, 2, 1))
sketch2.addConstraint(Sketcher.Constraint("Tangent", 2, 2, 3, 1))
sketch2.addConstraint(Sketcher.Constraint("Tangent", 3, 2, 4, 1))
sketch2.addConstraint(Sketcher.Constraint("Tangent", 4, 2, 5, 1))
sketch2.addConstraint(Sketcher.Constraint("Tangent", 5, 2, 6, 1))
sketch2.addConstraint(Sketcher.Constraint("Tangent", 6, 2, 7, 1))
sketch2.addConstraint(Sketcher.Constraint("Tangent", 7, 2, 0, 1))
sketch2.addConstraint(Sketcher.Constraint("Tangent", 8, 2, 9, 2))
sketch2.addConstraint(Sketcher.Constraint("Tangent", 9, 1, 10, 1))
sketch2.addConstraint(Sketcher.Constraint("Tangent", 10, 2, 11, 2))
sketch2.addConstraint(Sketcher.Constraint("Tangent", 11, 1, 12, 1))
sketch2.addConstraint(Sketcher.Constraint("Tangent", 12, 2, 13, 2))
sketch2.addConstraint(Sketcher.Constraint("Tangent", 13, 1, 14, 1))
sketch2.addConstraint(Sketcher.Constraint("Tangent", 14, 2, 15, 2))
sketch2.addConstraint(Sketcher.Constraint("Tangent", 15, 1, 8, 1))
sketch2.addConstraint(Sketcher.Constraint("Tangent", 16, 2, 17, 1))
sketch2.addConstraint(Sketcher.Constraint("Tangent", 17, 2, 18, 1))
sketch2.addConstraint(Sketcher.Constraint("Tangent", 18, 2, 19, 1))
sketch2.addConstraint(Sketcher.Constraint("Tangent", 19, 2, 20, 1))
sketch2.addConstraint(Sketcher.Constraint("Tangent", 20, 2, 21, 1))
sketch2.addConstraint(Sketcher.Constraint("Tangent", 21, 2, 22, 1))
sketch2.addConstraint(Sketcher.Constraint("Tangent", 22, 2, 23, 1))
sketch2.addConstraint(Sketcher.Constraint("Tangent", 23, 2, 16, 1))
sketch2.addConstraint(Sketcher.Constraint("Tangent", 24, 2, 25, 2))
sketch2.addConstraint(Sketcher.Constraint("Tangent", 25, 1, 26, 1))
sketch2.addConstraint(Sketcher.Constraint("Tangent", 26, 2, 27, 2))
sketch2.addConstraint(Sketcher.Constraint("Tangent", 27, 1, 28, 1))
sketch2.addConstraint(Sketcher.Constraint("Tangent", 28, 2, 29, 2))
sketch2.addConstraint(Sketcher.Constraint("Tangent", 29, 1, 30, 1))
sketch2.addConstraint(Sketcher.Constraint("Tangent", 30, 2, 31, 2))
sketch2.addConstraint(Sketcher.Constraint("Tangent", 31, 1, 24, 1))
sketch2.addConstraint(Sketcher.Constraint("Tangent", 32, 2, 33, 1))
sketch2.addConstraint(Sketcher.Constraint("Tangent", 33, 2, 34, 1))
sketch2.addConstraint(Sketcher.Constraint("Tangent", 34, 2, 35, 1))
sketch2.addConstraint(Sketcher.Constraint("Tangent", 35, 2, 36, 1))
sketch2.addConstraint(Sketcher.Constraint("Tangent", 36, 2, 37, 1))
sketch2.addConstraint(Sketcher.Constraint("Tangent", 37, 2, 38, 1))
sketch2.addConstraint(Sketcher.Constraint("Tangent", 38, 2, 39, 1))
sketch2.addConstraint(Sketcher.Constraint("Tangent", 39, 2, 32, 1))
sketch2.addConstraint(Sketcher.Constraint("Tangent", 40, 1, 41, 1))
sketch2.addConstraint(Sketcher.Constraint("Tangent", 41, 2, 42, 2))
sketch2.addConstraint(Sketcher.Constraint("Tangent", 42, 1, 43, 1))
sketch2.addConstraint(Sketcher.Constraint("Tangent", 43, 2, 44, 2))
sketch2.addConstraint(Sketcher.Constraint("Tangent", 44, 1, 45, 1))
sketch2.addConstraint(Sketcher.Constraint("Tangent", 45, 2, 46, 2))
sketch2.addConstraint(Sketcher.Constraint("Tangent", 46, 1, 47, 1))
sketch2.addConstraint(Sketcher.Constraint("Tangent", 47, 2, 40, 2))
sketch2.addConstraint(Sketcher.Constraint("Tangent", 48, 2, 49, 1))
sketch2.addConstraint(Sketcher.Constraint("Tangent", 49, 2, 50, 1))
sketch2.addConstraint(Sketcher.Constraint("Tangent", 50, 2, 51, 1))
sketch2.addConstraint(Sketcher.Constraint("Tangent", 51, 2, 52, 1))
sketch2.addConstraint(Sketcher.Constraint("Tangent", 52, 2, 53, 1))
sketch2.addConstraint(Sketcher.Constraint("Tangent", 53, 2, 54, 1))
sketch2.addConstraint(Sketcher.Constraint("Tangent", 54, 2, 55, 1))
sketch2.addConstraint(Sketcher.Constraint("Tangent", 55, 2, 48, 1))
sketch2.addConstraint(Sketcher.Constraint("Tangent", 56, 2, 57, 2))
sketch2.addConstraint(Sketcher.Constraint("Tangent", 57, 1, 58, 1))
sketch2.addConstraint(Sketcher.Constraint("Tangent", 58, 2, 59, 2))
sketch2.addConstraint(Sketcher.Constraint("Tangent", 59, 1, 60, 1))
sketch2.addConstraint(Sketcher.Constraint("Tangent", 60, 2, 61, 2))
sketch2.addConstraint(Sketcher.Constraint("Tangent", 61, 1, 62, 1))
sketch2.addConstraint(Sketcher.Constraint("Tangent", 62, 2, 63, 2))
sketch2.addConstraint(Sketcher.Constraint("Tangent", 63, 1, 56, 1))
sketch2.addConstraint(Sketcher.Constraint("Horizontal", 3))
sketch2.addConstraint(Sketcher.Constraint("Horizontal", 7))
sketch2.addConstraint(Sketcher.Constraint("Horizontal", 8))
sketch2.addConstraint(Sketcher.Constraint("Horizontal", 12))
sketch2.addConstraint(Sketcher.Constraint("Vertical", 18))
sketch2.addConstraint(Sketcher.Constraint("Vertical", 22))
sketch2.addConstraint(Sketcher.Constraint("Vertical", 26))
sketch2.addConstraint(Sketcher.Constraint("Vertical", 30))
sketch2.addConstraint(Sketcher.Constraint("Vertical", 35))
sketch2.addConstraint(Sketcher.Constraint("Vertical", 39))
sketch2.addConstraint(Sketcher.Constraint("Vertical", 41))
sketch2.addConstraint(Sketcher.Constraint("Vertical", 45))
sketch2.addConstraint(Sketcher.Constraint("Horizontal", 49))
sketch2.addConstraint(Sketcher.Constraint("Horizontal", 53))
sketch2.addConstraint(Sketcher.Constraint("Horizontal", 56))
sketch2.addConstraint(Sketcher.Constraint("Horizontal", 60))
sketch2.addConstraint(Sketcher.Constraint("Coincident", 9, 3, 6, 3))
sketch2.addConstraint(Sketcher.Constraint("Coincident", 11, 3, 4, 3))
sketch2.addConstraint(Sketcher.Constraint("Coincident", 13, 3, 2, 3))
sketch2.addConstraint(Sketcher.Constraint("Coincident", 15, 3, 0, 3))
sketch2.addConstraint(Sketcher.Constraint("Coincident", 25, 3, 23, 3))
sketch2.addConstraint(Sketcher.Constraint("Coincident", 27, 3, 21, 3))
sketch2.addConstraint(Sketcher.Constraint("Coincident", 29, 3, 19, 3))
sketch2.addConstraint(Sketcher.Constraint("Coincident", 31, 3, 17, 3))
sketch2.addConstraint(Sketcher.Constraint("Coincident", 40, 3, 32, 3))
sketch2.addConstraint(Sketcher.Constraint("Coincident", 42, 3, 38, 3))
sketch2.addConstraint(Sketcher.Constraint("Coincident", 44, 3, 36, 3))
sketch2.addConstraint(Sketcher.Constraint("Coincident", 46, 3, 34, 3))
sketch2.addConstraint(Sketcher.Constraint("Coincident", 57, 3, 48, 3))
sketch2.addConstraint(Sketcher.Constraint("Coincident", 59, 3, 54, 3))
sketch2.addConstraint(Sketcher.Constraint("Coincident", 61, 3, 52, 3))
sketch2.addConstraint(Sketcher.Constraint("Coincident", 63, 3, 50, 3))
sketch2.addConstraint(Sketcher.Constraint("Equal", 0, 2))
sketch2.addConstraint(Sketcher.Constraint("Equal", 2, 4))
sketch2.addConstraint(Sketcher.Constraint("Equal", 4, 6))
sketch2.addConstraint(Sketcher.Constraint("Equal", 9, 11))
sketch2.addConstraint(Sketcher.Constraint("Equal", 6, 17))
sketch2.addConstraint(Sketcher.Constraint("Equal", 17, 19))
sketch2.addConstraint(Sketcher.Constraint("Equal", 19, 21))
sketch2.addConstraint(Sketcher.Constraint("Equal", 21, 23))
sketch2.addConstraint(Sketcher.Constraint("Equal", 15, 25))
sketch2.addConstraint(Sketcher.Constraint("Equal", 27, 29))
sketch2.addConstraint(Sketcher.Constraint("Equal", 23, 32))
sketch2.addConstraint(Sketcher.Constraint("Equal", 32, 34))
sketch2.addConstraint(Sketcher.Constraint("Equal", 34, 36))
sketch2.addConstraint(Sketcher.Constraint("Equal", 36, 38))
sketch2.addConstraint(Sketcher.Constraint("Equal", 31, 40))
sketch2.addConstraint(Sketcher.Constraint("Equal", 42, 44))
sketch2.addConstraint(Sketcher.Constraint("Equal", 38, 48))
sketch2.addConstraint(Sketcher.Constraint("Equal", 48, 50))
sketch2.addConstraint(Sketcher.Constraint("Equal", 50, 52))
sketch2.addConstraint(Sketcher.Constraint("Equal", 52, 54))
sketch2.addConstraint(Sketcher.Constraint("Equal", 46, 57))
sketch2.addConstraint(Sketcher.Constraint("Equal", 57, 59))
sketch2.addConstraint(Sketcher.Constraint("Perpendicular", 1, 5))
sketch2.addConstraint(Sketcher.Constraint("Parallel", 14, 16))
sketch2.addConstraint(Sketcher.Constraint("Perpendicular", 16, 20))
sketch2.addConstraint(Sketcher.Constraint("Perpendicular", 28, 33))
sketch2.addConstraint(Sketcher.Constraint("Perpendicular", 33, 37))
sketch2.addConstraint(Sketcher.Constraint("Perpendicular", 47, 51))
sketch2.addConstraint(Sketcher.Constraint("Perpendicular", 51, 55))
sketch2.addConstraint(Sketcher.Constraint("Horizontal", 27, 3, 32, 3))
sketch2.addConstraint(Sketcher.Constraint("Horizontal", 29, 3, 34, 3))
sketch2.addConstraint(Sketcher.Constraint("Horizontal", 31, 3, 36, 3))
sketch2.addConstraint(Sketcher.Constraint("Horizontal", 25, 3, 38, 3))
sketch2.addConstraint(Sketcher.Constraint("Vertical", 11, 3, 48, 3))
sketch2.addConstraint(Sketcher.Constraint("Vertical", 13, 3, 50, 3))
sketch2.addConstraint(Sketcher.Constraint("Vertical", 15, 3, 52, 3))
sketch2.addConstraint(Sketcher.Constraint("Equal", 60, 18))
sketch2.addConstraint(Sketcher.Constraint("Equal", 56, 22))
sketch2.addConstraint(Sketcher.Constraint("Radius", 9, Q("2 mm")))
sketch2.addConstraint(Sketcher.Constraint("Radius", 0, Q("2.8 mm")))
sketch2.addConstraint(Sketcher.Constraint("DistanceX", 3, 2, 3, 1, Q("80 mm")))
sketch2.addConstraint(Sketcher.Constraint("DistanceX", 7, 1, 7, 2, Q("50 mm")))
sketch2.addConstraint(Sketcher.Constraint("DistanceX", -1, 1, 0, 3, Q("75 mm")))
sketch2.addConstraint(Sketcher.Constraint("DistanceY", 0, 3, -1, 1, Q("18 mm")))
sketch2.addConstraint(Sketcher.Constraint("DistanceX", -1, 1, 17, 3, Q("18 mm")))
sketch2.addConstraint(Sketcher.Constraint("DistanceY", 17, 3, -1, 1, Q("75 mm")))
sketch2.addConstraint(Sketcher.Constraint("DistanceX", -1, 1, 32, 3, Q("97 mm")))
sketch2.addConstraint(Sketcher.Constraint("DistanceY", 48, 3, -1, 1, Q("97 mm")))
pad2 = body.newObject("PartDesign::Pad", "Pad001")
pad2.Profile = sketch2
pad2.Length = 2

sketch3 = body.newObject("Sketcher::SketchObject", "Sketch002")
sketch3.AttachmentSupport = (doc.getObject("XZ_Plane"), [""])
sketch3.MapMode = "FlatFace"
sketch3.addGeometry(Part.Circle(V(63, -50, 0), V(0, 0, 1), 10), False)
sketch3.addGeometry(Part.Circle(V(63, -50, 0), V(0, 0, 1), 8), False)
sketch3.addGeometry(Part.Circle(V(37, -50, 0), V(0, 0, 1), 10), False)
sketch3.addGeometry(Part.Circle(V(37, -50, 0), V(0, 0, 1), 8), False)
sketch3.addConstraint(Sketcher.Constraint("Coincident", 1, 3, 0, 3))
sketch3.addConstraint(Sketcher.Constraint("Coincident", 3, 3, 2, 3))
sketch3.addConstraint(Sketcher.Constraint("Equal", 0, 2))
sketch3.addConstraint(Sketcher.Constraint("Equal", 1, 3))
sketch3.addConstraint(Sketcher.Constraint("Horizontal", 1, 3, 2, 3))
sketch3.addConstraint(Sketcher.Constraint("Diameter", 0, Q("20.2 mm")))
sketch3.addConstraint(Sketcher.Constraint("Diameter", 1, Q("16.2 mm")))
sketch3.addConstraint(Sketcher.Constraint("DistanceX", -1, 1, 0, 3, Q("63 mm")))
sketch3.addConstraint(Sketcher.Constraint("DistanceY", 0, 3, -1, 1, Q("50 mm")))
sketch3.addConstraint(Sketcher.Constraint("DistanceX", -1, 1, 2, 3, Q("37 mm")))
pad3 = body.newObject("PartDesign::Pad", "Pad002")
pad3.Profile = sketch3
pad3.Length = 6.8

sketch4 = body.newObject("Sketcher::SketchObject", "Sketch003")
sketch4.AttachmentSupport = (doc.getObject("XZ_Plane"), [""])
sketch4.MapMode = "FlatFace"
sketch4.AttachmentOffset = App.Placement(V(0, 0, -2), App.Rotation())
sketch4.addGeometry(Part.LineSegment(V(47.8, -43.5, 0), V(46.3, -43.5, 0)), False)
sketch4.addGeometry(Part.ArcOfCircle(Part.Circle(V(50, -43.5, 0), V(0, 0, 1), 3.7), math.radians(0), math.radians(180)), False)
sketch4.addGeometry(Part.LineSegment(V(53.7, -43.5, 0), V(52.2, -43.5, 0)), False)
sketch4.addGeometry(Part.ArcOfCircle(Part.Circle(V(50, -43.5, 0), V(0, 0, 1), 2.2), math.radians(0), math.radians(180)), False)
sketch4.addConstraint(Sketcher.Constraint("Coincident", 0, 2, 1, 2))
sketch4.addConstraint(Sketcher.Constraint("Coincident", 1, 1, 2, 1))
sketch4.addConstraint(Sketcher.Constraint("Coincident", 2, 2, 3, 1))
sketch4.addConstraint(Sketcher.Constraint("Coincident", 3, 2, 0, 1))
sketch4.addConstraint(Sketcher.Constraint("Horizontal", 0))
sketch4.addConstraint(Sketcher.Constraint("Horizontal", 2))
sketch4.addConstraint(Sketcher.Constraint("Coincident", 3, 3, 1, 3))
sketch4.addConstraint(Sketcher.Constraint("Horizontal", 3, 3, 0, 2))
sketch4.addConstraint(Sketcher.Constraint("Horizontal", 0, 2, 1, 1))
sketch4.addConstraint(Sketcher.Constraint("DistanceX", -1, 1, 1, 3, Q("50 mm")))
sketch4.addConstraint(Sketcher.Constraint("Radius", 1, Q("3.658988 mm")))
sketch4.addConstraint(Sketcher.Constraint("Radius", 3, Q("2.236093 mm")))
sketch4.addConstraint(Sketcher.Constraint("DistanceY", 1, 3, -1, 1, Q("43.452737 mm")))
pocket1 = body.newObject("PartDesign::Pocket", "Pocket")
pocket1.Profile = sketch4
pocket1.Length = 1
pocket1.Reversed = True
doc.recompute()

chamfer = body.newObject("PartDesign::Chamfer", "Chamfer")
chamfer.Base = (pocket1, edges_at(pocket1, [(26.9, -6.8, -50), (52.9, -6.8, -50)]))
chamfer.Size = 1

sketch5 = body.newObject("Sketcher::SketchObject", "Sketch004")
sketch5.AttachmentSupport = (doc.getObject("XZ_Plane"), [""])
sketch5.MapMode = "FlatFace"
sketch5.addGeometry(Part.Circle(V(23, -23, 0), V(0, 0, 1), 3.4), False)
sketch5.addGeometry(Part.Circle(V(23, -23, 0), V(0, 0, 1), 1.5), False)
sketch5.addConstraint(Sketcher.Constraint("Coincident", 1, 3, 0, 3))
sketch5.addConstraint(Sketcher.Constraint("Diameter", 1, Q("3 mm")))
sketch5.addConstraint(Sketcher.Constraint("DistanceX", -1, 1, 0, 3, Q("23 mm")))
sketch5.addConstraint(Sketcher.Constraint("DistanceY", 0, 3, -1, 1, Q("23 mm")))
sketch5.addConstraint(Sketcher.Constraint("Diameter", 0, Q("6.77033 mm")))
pad4 = body.newObject("PartDesign::Pad", "Pad003")
pad4.Profile = sketch5
pad4.Length = 17
doc.recompute()

datumplane = body.newObject("PartDesign::Plane", "DatumPlane")
datumplane.AttachmentSupport = (doc.getObject("YZ_Plane"), [""])
datumplane.MapMode = "FlatFace"
datumplane.AttachmentOffset = App.Placement(V(0, 0, 50), App.Rotation())
mirrored = body.newObject("PartDesign::Mirrored", "Mirrored")
mirrored.Originals = [pad4]
mirrored.MirrorPlane = (datumplane, [""])
body.Tip = mirrored
doc.recompute()

datumplane2 = body.newObject("PartDesign::Plane", "DatumPlane001")
datumplane2.AttachmentSupport = (doc.getObject("XY_Plane"), [""])
datumplane2.MapMode = "FlatFace"
datumplane2.AttachmentOffset = App.Placement(V(0, 0, -50.286404), App.Rotation())
mirrored2 = body.newObject("PartDesign::Mirrored", "Mirrored001")
mirrored2.Originals = [pad4]
mirrored2.MirrorPlane = (datumplane2, [""])
body.Tip = mirrored2

sketch6 = body.newObject("Sketcher::SketchObject", "Sketch005")
sketch6.AttachmentSupport = (doc.getObject("XZ_Plane"), [""])
sketch6.MapMode = "FlatFace"
sketch6.addGeometry(Part.Circle(V(77, -77.6, 0), V(0, 0, 1), 3.4), False)
sketch6.addGeometry(Part.Circle(V(77, -77.6, 0), V(0, 0, 1), 1.5), False)
sketch6.addConstraint(Sketcher.Constraint("Coincident", 1, 3, 0, 3))
sketch6.addConstraint(Sketcher.Constraint("Diameter", 1, Q("3 mm")))
sketch6.addConstraint(Sketcher.Constraint("DistanceX", -1, 1, 0, 3, Q("77 mm")))
sketch6.addConstraint(Sketcher.Constraint("Diameter", 0, Q("6.77033 mm")))
sketch6.addConstraint(Sketcher.Constraint("DistanceY", 0, 3, -1, 1, Q("77.572808 mm")))
pad5 = body.newObject("PartDesign::Pad", "Pad004")
pad5.Profile = sketch6
pad5.Length = 17
doc.recompute()

chamfer2 = body.newObject("PartDesign::Chamfer", "Chamfer001")
chamfer2.Base = (pad5, edges_at(pad5, [
    (19.615, -17, -23),
    (21.5, -17, -23),
    (80.385, -17, -23),
    (78.5, -17, -23),
    (80.385, -17, -77.573),
    (78.5, -17, -77.573),
    (19.615, -17, -77.573),
    (21.5, -17, -77.573),
]))
chamfer2.Size = 0.5

doc.recompute()
